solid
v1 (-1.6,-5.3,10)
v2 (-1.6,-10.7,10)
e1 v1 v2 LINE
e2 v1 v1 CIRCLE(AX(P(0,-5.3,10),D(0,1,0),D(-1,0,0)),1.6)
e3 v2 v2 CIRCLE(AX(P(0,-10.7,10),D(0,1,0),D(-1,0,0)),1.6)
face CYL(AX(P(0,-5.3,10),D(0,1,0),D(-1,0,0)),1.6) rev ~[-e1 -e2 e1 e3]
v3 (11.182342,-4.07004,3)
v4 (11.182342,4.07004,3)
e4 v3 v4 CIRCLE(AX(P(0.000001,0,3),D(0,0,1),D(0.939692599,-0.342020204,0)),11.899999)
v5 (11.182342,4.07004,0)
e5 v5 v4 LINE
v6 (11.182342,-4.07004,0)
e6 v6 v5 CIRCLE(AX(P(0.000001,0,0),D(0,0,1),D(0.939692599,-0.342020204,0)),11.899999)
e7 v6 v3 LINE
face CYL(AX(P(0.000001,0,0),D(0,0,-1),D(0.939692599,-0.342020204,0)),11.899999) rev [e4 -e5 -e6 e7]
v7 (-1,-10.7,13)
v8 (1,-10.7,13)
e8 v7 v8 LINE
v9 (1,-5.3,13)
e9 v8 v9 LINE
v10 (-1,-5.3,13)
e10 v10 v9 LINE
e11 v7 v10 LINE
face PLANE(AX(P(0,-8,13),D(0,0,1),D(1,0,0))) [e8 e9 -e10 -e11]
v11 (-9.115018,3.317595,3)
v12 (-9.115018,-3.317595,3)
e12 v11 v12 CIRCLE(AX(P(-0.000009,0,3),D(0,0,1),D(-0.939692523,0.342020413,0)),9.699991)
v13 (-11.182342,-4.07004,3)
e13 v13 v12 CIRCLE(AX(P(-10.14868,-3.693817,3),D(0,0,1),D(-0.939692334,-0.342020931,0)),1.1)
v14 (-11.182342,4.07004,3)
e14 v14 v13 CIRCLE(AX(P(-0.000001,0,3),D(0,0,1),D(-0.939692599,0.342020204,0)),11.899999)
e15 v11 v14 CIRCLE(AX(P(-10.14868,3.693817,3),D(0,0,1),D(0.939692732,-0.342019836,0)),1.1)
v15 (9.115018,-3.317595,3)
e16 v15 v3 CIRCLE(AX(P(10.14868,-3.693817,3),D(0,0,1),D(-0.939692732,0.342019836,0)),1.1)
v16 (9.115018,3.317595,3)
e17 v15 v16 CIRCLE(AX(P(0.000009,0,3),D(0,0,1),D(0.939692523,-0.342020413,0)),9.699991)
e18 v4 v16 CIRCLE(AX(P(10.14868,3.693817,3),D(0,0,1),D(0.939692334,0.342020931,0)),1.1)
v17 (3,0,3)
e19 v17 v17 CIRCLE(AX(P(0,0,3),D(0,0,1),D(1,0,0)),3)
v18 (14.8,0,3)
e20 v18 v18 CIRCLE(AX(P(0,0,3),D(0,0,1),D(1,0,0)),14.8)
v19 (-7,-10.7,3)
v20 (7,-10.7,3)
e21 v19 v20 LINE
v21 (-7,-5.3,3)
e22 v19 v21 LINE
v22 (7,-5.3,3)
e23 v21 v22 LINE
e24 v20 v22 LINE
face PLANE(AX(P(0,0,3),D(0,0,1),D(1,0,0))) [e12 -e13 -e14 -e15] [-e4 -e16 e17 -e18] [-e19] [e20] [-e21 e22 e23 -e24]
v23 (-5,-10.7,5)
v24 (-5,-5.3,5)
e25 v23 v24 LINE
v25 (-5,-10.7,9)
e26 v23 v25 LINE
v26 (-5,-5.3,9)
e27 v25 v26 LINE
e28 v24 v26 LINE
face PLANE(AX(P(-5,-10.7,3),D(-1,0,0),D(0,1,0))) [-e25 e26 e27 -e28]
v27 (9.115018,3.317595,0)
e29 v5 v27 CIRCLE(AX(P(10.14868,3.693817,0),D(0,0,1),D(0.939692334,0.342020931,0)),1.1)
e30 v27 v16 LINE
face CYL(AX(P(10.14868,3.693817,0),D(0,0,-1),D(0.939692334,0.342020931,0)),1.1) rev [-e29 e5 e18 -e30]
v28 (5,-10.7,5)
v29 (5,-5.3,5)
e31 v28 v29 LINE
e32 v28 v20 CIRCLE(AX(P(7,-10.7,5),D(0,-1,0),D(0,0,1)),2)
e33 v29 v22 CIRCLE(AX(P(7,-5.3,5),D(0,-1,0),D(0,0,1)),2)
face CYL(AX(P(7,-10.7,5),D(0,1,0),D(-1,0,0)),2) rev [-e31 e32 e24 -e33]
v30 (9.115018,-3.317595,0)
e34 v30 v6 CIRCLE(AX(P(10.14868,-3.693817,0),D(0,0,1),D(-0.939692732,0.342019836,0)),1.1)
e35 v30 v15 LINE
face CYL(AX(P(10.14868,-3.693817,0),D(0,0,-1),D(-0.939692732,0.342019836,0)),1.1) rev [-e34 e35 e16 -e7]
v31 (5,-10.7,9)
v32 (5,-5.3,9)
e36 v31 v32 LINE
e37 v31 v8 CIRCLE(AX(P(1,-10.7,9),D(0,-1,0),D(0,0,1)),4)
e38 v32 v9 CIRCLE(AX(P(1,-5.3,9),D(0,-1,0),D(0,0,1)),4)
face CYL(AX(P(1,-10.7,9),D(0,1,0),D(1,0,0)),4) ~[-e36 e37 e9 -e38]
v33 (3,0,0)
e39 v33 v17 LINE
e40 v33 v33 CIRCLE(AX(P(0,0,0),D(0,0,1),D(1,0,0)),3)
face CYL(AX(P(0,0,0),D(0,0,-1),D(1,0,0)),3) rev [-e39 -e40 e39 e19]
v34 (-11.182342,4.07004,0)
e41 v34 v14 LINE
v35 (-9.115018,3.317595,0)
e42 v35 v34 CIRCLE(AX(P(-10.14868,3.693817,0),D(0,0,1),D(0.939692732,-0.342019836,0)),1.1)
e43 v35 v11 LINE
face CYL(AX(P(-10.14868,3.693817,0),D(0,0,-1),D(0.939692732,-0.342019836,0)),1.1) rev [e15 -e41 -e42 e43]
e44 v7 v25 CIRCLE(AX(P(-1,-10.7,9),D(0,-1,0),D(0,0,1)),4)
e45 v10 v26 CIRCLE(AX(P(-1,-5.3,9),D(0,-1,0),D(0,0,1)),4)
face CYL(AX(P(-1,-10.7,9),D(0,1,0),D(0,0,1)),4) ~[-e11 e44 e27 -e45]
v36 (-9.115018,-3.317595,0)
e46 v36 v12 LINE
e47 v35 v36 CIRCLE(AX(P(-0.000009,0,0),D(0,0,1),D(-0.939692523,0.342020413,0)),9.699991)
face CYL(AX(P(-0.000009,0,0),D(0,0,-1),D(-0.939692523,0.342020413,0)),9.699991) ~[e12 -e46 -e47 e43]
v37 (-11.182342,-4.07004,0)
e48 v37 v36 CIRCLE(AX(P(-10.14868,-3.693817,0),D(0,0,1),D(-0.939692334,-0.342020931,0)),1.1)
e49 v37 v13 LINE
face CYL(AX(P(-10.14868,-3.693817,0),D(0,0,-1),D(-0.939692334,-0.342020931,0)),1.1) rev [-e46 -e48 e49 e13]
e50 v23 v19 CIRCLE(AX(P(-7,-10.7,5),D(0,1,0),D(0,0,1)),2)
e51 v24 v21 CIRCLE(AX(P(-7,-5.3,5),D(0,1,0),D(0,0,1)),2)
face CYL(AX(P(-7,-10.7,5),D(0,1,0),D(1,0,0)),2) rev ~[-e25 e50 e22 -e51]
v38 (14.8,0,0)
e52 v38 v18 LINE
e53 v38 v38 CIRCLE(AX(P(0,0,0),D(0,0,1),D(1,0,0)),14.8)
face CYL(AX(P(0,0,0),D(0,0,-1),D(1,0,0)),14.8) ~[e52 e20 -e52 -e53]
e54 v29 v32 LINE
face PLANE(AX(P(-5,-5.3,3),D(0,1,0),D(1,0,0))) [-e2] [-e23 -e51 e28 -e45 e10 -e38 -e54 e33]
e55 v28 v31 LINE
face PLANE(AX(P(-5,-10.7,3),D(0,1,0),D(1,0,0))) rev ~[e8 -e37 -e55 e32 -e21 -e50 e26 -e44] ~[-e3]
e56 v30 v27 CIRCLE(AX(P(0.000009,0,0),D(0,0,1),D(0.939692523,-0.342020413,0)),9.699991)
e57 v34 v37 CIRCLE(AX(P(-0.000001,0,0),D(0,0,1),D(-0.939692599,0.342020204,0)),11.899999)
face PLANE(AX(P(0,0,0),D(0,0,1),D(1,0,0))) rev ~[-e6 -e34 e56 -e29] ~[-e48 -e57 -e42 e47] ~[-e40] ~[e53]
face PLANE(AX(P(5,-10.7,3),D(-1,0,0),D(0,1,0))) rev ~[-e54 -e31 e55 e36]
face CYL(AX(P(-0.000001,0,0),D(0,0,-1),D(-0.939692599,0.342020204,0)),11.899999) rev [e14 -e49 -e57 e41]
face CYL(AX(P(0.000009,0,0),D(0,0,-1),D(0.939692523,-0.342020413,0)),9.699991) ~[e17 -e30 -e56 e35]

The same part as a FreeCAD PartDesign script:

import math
import FreeCAD as App
import Part
import Sketcher

V = App.Vector


def edges_at(feature, points):
    """Names of the edges that pass closest to the given points."""
    edges = feature.Shape.Edges
    near = lambda p: min(range(len(edges)), key=lambda i: edges[i].distToShape(Part.Vertex(*p))[0])
    return sorted({f"Edge{near(p) + 1}" for p in points})


def add_polygon(sketch, points):
    """Adds a closed chain of lines whose ends are joined by coincident constraints."""
    first, n = sketch.GeometryCount, len(points)
    for a, b in zip(points, points[1:] + points[:1]):
        sketch.addGeometry(Part.LineSegment(App.Vector(*a, 0), App.Vector(*b, 0)), False)
    for i in range(n):
        sketch.addConstraint(Sketcher.Constraint("Coincident", first + i, 2, first + (i + 1) % n, 1))

doc = App.newDocument("Part")
body = doc.addObject("PartDesign::Body", "Body")

# Sketch on XY plane
sketch1 = body.newObject("Sketcher::SketchObject", "Sketch")
sketch1.AttachmentSupport = (doc.getObject("XY_Plane"), [""])
sketch1.MapMode = "FlatFace"
sketch1.addGeometry([
    Part.Circle(V(0, 0, 0), V(0, 0, 1), 14.8),  # 0
    Part.ArcOfCircle(Part.Circle(V(-10.1, 3.7, 0), V(0, 0, 1), 1.1), math.radians(-20), math.radians(160)),  # 1
    Part.ArcOfCircle(Part.Circle(V(0, 0, 0), V(0, 0, 1), 9.7), math.radians(160), math.radians(200)),  # 2
    Part.ArcOfCircle(Part.Circle(V(-10.1, -3.7, 0), V(0, 0, 1), 1.1), math.radians(-160), math.radians(20)),  # 3
    Part.ArcOfCircle(Part.Circle(V(0, 0, 0), V(0, 0, 1), 11.9), math.radians(160), math.radians(200)),  # 4
    Part.Circle(V(0, 0, 0), V(0, 0, 1), 3),  # 5
    Part.ArcOfCircle(Part.Circle(V(10.1, 3.7, 0), V(0, 0, 1), 1.1), math.radians(20), math.radians(200)),  # 6
    Part.ArcOfCircle(Part.Circle(V(0, 0, 0), V(0, 0, 1), 11.9), math.radians(-20), math.radians(20)),  # 7
    Part.ArcOfCircle(Part.Circle(V(10.1, -3.7, 0), V(0, 0, 1), 1.1), math.radians(160), math.radians(340)),  # 8
    Part.ArcOfCircle(Part.Circle(V(0, 0, 0), V(0, 0, 1), 9.7), math.radians(-20), math.radians(20)),  # 9
], False)
sketch1.addConstraint([
    Sketcher.Constraint("Tangent", 1, 1, 2, 1),
    Sketcher.Constraint("Tangent", 2, 2, 3, 2),
    Sketcher.Constraint("Tangent", 3, 1, 4, 2),
    Sketcher.Constraint("Tangent", 4, 1, 1, 2),
    Sketcher.Constraint("Tangent", 6, 1, 7, 2),
    Sketcher.Constraint("Tangent", 7, 1, 8, 2),
    Sketcher.Constraint("Tangent", 8, 1, 9, 1),
    Sketcher.Constraint("Tangent", 9, 2, 6, 2),
    Sketcher.Constraint("Coincident", 0, 3, -1, 1),
    Sketcher.Constraint("Coincident", 2, 3, -1, 1),
    Sketcher.Constraint("Coincident", 4, 3, -1, 1),
    Sketcher.Constraint("Coincident", 5, 3, -1, 1),
    Sketcher.Constraint("Coincident", 7, 3, -1, 1),
    Sketcher.Constraint("Coincident", 9, 3, -1, 1),
    Sketcher.Constraint("Equal", 3, 6),
    Sketcher.Constraint("Equal", 4, 7),
    Sketcher.Constraint("Horizontal", 1, 3, 6, 3),
    Sketcher.Constraint("Horizontal", 3, 3, 8, 3),
    Sketcher.Constraint("Vertical", 1, 3, 3, 3),
    Sketcher.Constraint("Diameter", 5, 6.0),
    Sketcher.Constraint("Diameter", 0, 29.6),
    Sketcher.Constraint("Radius", 1, 1.1),
    Sketcher.Constraint("Radius", 4, 11.899999),
    Sketcher.Constraint("DistanceX", 1, 3, -1, 1, 10.14868),
])
pad1 = body.newObject("PartDesign::Pad", "Pad")
pad1.Profile = sketch1
pad1.Length = 3

# Sketch on XY plane
sketch2 = body.newObject("Sketcher::SketchObject", "Sketch001")
sketch2.AttachmentSupport = (doc.getObject("XY_Plane"), [""])
sketch2.MapMode = "FlatFace"
sketch2.AttachmentOffset = App.Placement(V(0, 0, 3), App.Rotation())
add_polygon(sketch2, [(-5, -5), (-5, -11), (5, -11), (5, -5)])  # lines 0-3
sketch2.addConstraint([
    Sketcher.Constraint("Vertical", 0),
    Sketcher.Constraint("Horizontal", 1),
    Sketcher.Constraint("Vertical", 2),
    Sketcher.Constraint("Horizontal", 3),
    Sketcher.Constraint("DistanceX", 1, 1, 1, 2, 10.0),
    Sketcher.Constraint("DistanceY", 0, 2, 0, 1, 5.4),
    Sketcher.Constraint("DistanceX", 0, 2, -1, 1, 5.0),
    Sketcher.Constraint("DistanceY", 0, 2, -1, 1, 10.7),
])
pad2 = body.newObject("PartDesign::Pad", "Pad001")
pad2.Profile = sketch2
pad2.Length = 10

# Sketch on XZ plane
sketch3 = body.newObject("Sketcher::SketchObject", "Sketch002")
sketch3.AttachmentSupport = (doc.getObject("XZ_Plane"), [""])
sketch3.MapMode = "FlatFace"
sketch3.AttachmentOffset = App.Placement(V(0, 0, 5.3), App.Rotation())
sketch3.addGeometry(Part.Circle(V(0, 10, 0), V(0, 0, 1), 1.6), False)
sketch3.addConstraint([
    Sketcher.Constraint("PointOnObject", 0, 3, -2),
    Sketcher.Constraint("Diameter", 0, 3.2),
    Sketcher.Constraint("DistanceY", -1, 1, 0, 3, 10.0),
])
pocket1 = body.newObject("PartDesign::Pocket", "Pocket")
pocket1.Profile = sketch3
pocket1.Length = 5.4
pocket1.Reversed = True
doc.recompute()

fillet = body.newObject("PartDesign::Fillet", "Fillet")
fillet.Base = (pocket1, edges_at(pocket1, [(5, -8, 13)]))
fillet.Radius = 4
doc.recompute()

fillet2 = body.newObject("PartDesign::Fillet", "Fillet001")
fillet2.Base = (fillet, edges_at(fillet, [(-5, -8, 13)]))
fillet2.Radius = 4
doc.recompute()

fillet3 = body.newObject("PartDesign::Fillet", "Fillet002")
fillet3.Base = (fillet2, edges_at(fillet2, [(5, -8, 3)]))
fillet3.Radius = 2
doc.recompute()

fillet4 = body.newObject("PartDesign::Fillet", "Fillet003")
fillet4.Base = (fillet3, edges_at(fillet3, [(-5, -8, 3)]))
fillet4.Radius = 2

doc.recompute()
